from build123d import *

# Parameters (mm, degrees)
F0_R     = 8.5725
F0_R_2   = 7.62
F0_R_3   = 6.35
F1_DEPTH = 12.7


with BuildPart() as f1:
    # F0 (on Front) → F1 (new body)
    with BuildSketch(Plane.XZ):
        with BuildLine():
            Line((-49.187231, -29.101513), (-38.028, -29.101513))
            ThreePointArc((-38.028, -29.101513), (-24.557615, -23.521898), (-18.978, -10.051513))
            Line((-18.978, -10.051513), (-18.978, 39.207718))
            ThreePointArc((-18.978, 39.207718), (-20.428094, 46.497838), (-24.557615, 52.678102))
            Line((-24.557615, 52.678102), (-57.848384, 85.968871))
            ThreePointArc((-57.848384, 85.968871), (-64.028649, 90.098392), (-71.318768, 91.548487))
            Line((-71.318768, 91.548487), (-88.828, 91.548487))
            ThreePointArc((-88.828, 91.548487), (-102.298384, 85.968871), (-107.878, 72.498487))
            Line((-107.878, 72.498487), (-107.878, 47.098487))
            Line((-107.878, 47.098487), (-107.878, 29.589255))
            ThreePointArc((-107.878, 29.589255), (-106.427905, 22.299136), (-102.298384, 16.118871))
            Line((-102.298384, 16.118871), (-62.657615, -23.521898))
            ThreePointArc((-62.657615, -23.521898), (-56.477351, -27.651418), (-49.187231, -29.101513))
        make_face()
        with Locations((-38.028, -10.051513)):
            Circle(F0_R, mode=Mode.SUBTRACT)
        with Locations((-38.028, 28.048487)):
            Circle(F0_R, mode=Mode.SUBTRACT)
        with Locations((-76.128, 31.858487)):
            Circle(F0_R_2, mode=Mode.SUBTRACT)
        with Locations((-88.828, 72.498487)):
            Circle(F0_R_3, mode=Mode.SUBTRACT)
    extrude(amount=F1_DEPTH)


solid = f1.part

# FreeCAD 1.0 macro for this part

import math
import FreeCAD as App
import Part
import Sketcher

V = App.Vector
Q = App.Units.Quantity

doc = App.newDocument("Part")
body = doc.addObject("PartDesign::Body", "Body")

sketch1 = doc.addObject("Sketcher::SketchObject", "Sketch")
body.addObject(sketch1)
sketch1.AttachmentSupport = (doc.XZ_Plane, [""])
sketch1.MapMode = "FlatFace"
sketch1.addGeometry(Part.LineSegment(V(-49.187231, -29.101513, 0), V(-38.028, -29.101513, 0)), False)
sketch1.addGeometry(Part.ArcOfCircle(Part.Circle(V(-38.027997, -10.051516, 0), V(0, 0, 1), 19.049997), math.radians(-90.000008), math.radians(0.000008)), False)
sketch1.addGeometry(Part.LineSegment(V(-18.978, -10.051513, 0), V(-18.978, 39.207718, 0)), False)
sketch1.addGeometry(Part.ArcOfCircle(Part.Circle(V(-38.02799, 39.207723, 0), V(0, 0, 1), 19.04999), math.radians(-0.000014), math.radians(45.000009)), False)
sketch1.addGeometry(Part.LineSegment(V(-24.557615, 52.678102, 0), V(-57.848384, 85.968871, 0)), False)
sketch1.addGeometry(Part.ArcOfCircle(Part.Circle(V(-71.318769, 72.498486, 0), V(0, 0, 1), 19.050001), math.radians(45.000001), math.radians(89.999997)), False)
sketch1.addGeometry(Part.LineSegment(V(-71.318768, 91.548487, 0), V(-88.828, 91.548487, 0)), False)
sketch1.addGeometry(Part.ArcOfCircle(Part.Circle(V(-88.827999, 72.498486, 0), V(0, 0, 1), 19.050001), math.radians(90.000002), math.radians(179.999998)), False)
sketch1.addGeometry(Part.LineSegment(V(-107.878, 72.498487, 0), V(-107.878, 29.589255, 0)), False)
sketch1.addGeometry(Part.ArcOfCircle(Part.Circle(V(-88.827999, 29.589256, 0), V(0, 0, 1), 19.050001), math.radians(-179.999997), math.radians(-135.000001)), False)
sketch1.addGeometry(Part.LineSegment(V(-102.298384, 16.118871, 0), V(-62.657615, -23.521898, 0)), False)
sketch1.addGeometry(Part.ArcOfCircle(Part.Circle(V(-49.187231, -10.051512, 0), V(0, 0, 1), 19.050001), math.radians(-134.999995), math.radians(-90)), False)
sketch1.addGeometry(Part.Circle(V(-38.028, -10.051513, 0), V(0, 0, 1), 8.5725), False)
sketch1.addGeometry(Part.Circle(V(-38.028, 28.048487, 0), V(0, 0, 1), 8.5725), False)
sketch1.addGeometry(Part.Circle(V(-76.128, 31.858487, 0), V(0, 0, 1), 7.62), False)
sketch1.addGeometry(Part.Circle(V(-88.828, 72.498487, 0), V(0, 0, 1), 6.35), False)
sketch1.addConstraint(Sketcher.Constraint("Tangent", 0, 2, 1, 1))
sketch1.addConstraint(Sketcher.Constraint("Tangent", 1, 2, 2, 1))
sketch1.addConstraint(Sketcher.Constraint("Tangent", 2, 2, 3, 1))
sketch1.addConstraint(Sketcher.Constraint("Tangent", 3, 2, 4, 1))
sketch1.addConstraint(Sketcher.Constraint("Tangent", 4, 2, 5, 1))
sketch1.addConstraint(Sketcher.Constraint("Tangent", 5, 2, 6, 1))
sketch1.addConstraint(Sketcher.Constraint("Tangent", 6, 2, 7, 1))
sketch1.addConstraint(Sketcher.Constraint("Tangent", 7, 2, 8, 1))
sketch1.addConstraint(Sketcher.Constraint("Tangent", 8, 2, 9, 1))
sketch1.addConstraint(Sketcher.Constraint("Tangent", 9, 2, 10, 1))
sketch1.addConstraint(Sketcher.Constraint("Tangent", 10, 2, 11, 1))
sketch1.addConstraint(Sketcher.Constraint("Tangent", 11, 2, 0, 1))
sketch1.addConstraint(Sketcher.Constraint("Horizontal", 0))
sketch1.addConstraint(Sketcher.Constraint("Vertical", 2))
sketch1.addConstraint(Sketcher.Constraint("Horizontal", 6))
sketch1.addConstraint(Sketcher.Constraint("Vertical", 8))
sketch1.addConstraint(Sketcher.Constraint("Coincident", 12, 3, 1, 3))
sketch1.addConstraint(Sketcher.Constraint("Coincident", 15, 3, 7, 3))
sketch1.addConstraint(Sketcher.Constraint("Equal", 5, 7))
sketch1.addConstraint(Sketcher.Constraint("Equal", 7, 9))
sketch1.addConstraint(Sketcher.Constraint("Equal", 9, 11))
sketch1.addConstraint(Sketcher.Constraint("Equal", 12, 13))
sketch1.addConstraint(Sketcher.Constraint("Parallel", 4, 10))
sketch1.addConstraint(Sketcher.Constraint("Horizontal", 11, 3, 12, 3))
sketch1.addConstraint(Sketcher.Constraint("Vertical", 12, 3, 13, 3))
sketch1.addConstraint(Sketcher.Constraint("Diameter", 14, Q("0.6 in")))
sketch1.addConstraint(Sketcher.Constraint("Diameter", 15, Q("0.5 in")))
sketch1.addConstraint(Sketcher.Constraint("Radius", 1, Q("0.7499999 in")))
sketch1.addConstraint(Sketcher.Constraint("Diameter", 12, Q("0.675 in")))
sketch1.addConstraint(Sketcher.Constraint("Angle", 4, Q("135 deg")))
sketch1.addConstraint(Sketcher.Constraint("DistanceX", 7, 3, 1, 3, Q("2.0000001 in")))
sketch1.addConstraint(Sketcher.Constraint("DistanceY", 12, 3, 13, 3, Q("1.5 in")))
sketch1.addConstraint(Sketcher.Constraint("DistanceX", 9, 3, 14, 3, Q("0.5 in")))
sketch1.addConstraint(Sketcher.Constraint("DistanceY", 14, 3, 5, 3, Q("1.6 in")))
sketch1.addConstraint(Sketcher.Constraint("DistanceY", 1, 3, 5, 3, Q("3.2500001 in")))
sketch1.addConstraint(Sketcher.Constraint("Radius", 3, 19.04999))
sketch1.addConstraint(Sketcher.Constraint("DistanceX", 0, 1, 0, 2, 11.159231))
sketch1.addConstraint(Sketcher.Constraint("DistanceX", 6, 2, 6, 1, 17.509232))
sketch1.addConstraint(Sketcher.Constraint("DistanceX", 7, 3, -1, 1, 88.827999))
sketch1.addConstraint(Sketcher.Constraint("DistanceY", -1, 1, 3, 2, 52.678102))
pad1 = doc.addObject("PartDesign::Pad", "Pad")
body.addObject(pad1)
pad1.Profile = sketch1
pad1.Length = Q("0.5 in")

doc.recompute()
